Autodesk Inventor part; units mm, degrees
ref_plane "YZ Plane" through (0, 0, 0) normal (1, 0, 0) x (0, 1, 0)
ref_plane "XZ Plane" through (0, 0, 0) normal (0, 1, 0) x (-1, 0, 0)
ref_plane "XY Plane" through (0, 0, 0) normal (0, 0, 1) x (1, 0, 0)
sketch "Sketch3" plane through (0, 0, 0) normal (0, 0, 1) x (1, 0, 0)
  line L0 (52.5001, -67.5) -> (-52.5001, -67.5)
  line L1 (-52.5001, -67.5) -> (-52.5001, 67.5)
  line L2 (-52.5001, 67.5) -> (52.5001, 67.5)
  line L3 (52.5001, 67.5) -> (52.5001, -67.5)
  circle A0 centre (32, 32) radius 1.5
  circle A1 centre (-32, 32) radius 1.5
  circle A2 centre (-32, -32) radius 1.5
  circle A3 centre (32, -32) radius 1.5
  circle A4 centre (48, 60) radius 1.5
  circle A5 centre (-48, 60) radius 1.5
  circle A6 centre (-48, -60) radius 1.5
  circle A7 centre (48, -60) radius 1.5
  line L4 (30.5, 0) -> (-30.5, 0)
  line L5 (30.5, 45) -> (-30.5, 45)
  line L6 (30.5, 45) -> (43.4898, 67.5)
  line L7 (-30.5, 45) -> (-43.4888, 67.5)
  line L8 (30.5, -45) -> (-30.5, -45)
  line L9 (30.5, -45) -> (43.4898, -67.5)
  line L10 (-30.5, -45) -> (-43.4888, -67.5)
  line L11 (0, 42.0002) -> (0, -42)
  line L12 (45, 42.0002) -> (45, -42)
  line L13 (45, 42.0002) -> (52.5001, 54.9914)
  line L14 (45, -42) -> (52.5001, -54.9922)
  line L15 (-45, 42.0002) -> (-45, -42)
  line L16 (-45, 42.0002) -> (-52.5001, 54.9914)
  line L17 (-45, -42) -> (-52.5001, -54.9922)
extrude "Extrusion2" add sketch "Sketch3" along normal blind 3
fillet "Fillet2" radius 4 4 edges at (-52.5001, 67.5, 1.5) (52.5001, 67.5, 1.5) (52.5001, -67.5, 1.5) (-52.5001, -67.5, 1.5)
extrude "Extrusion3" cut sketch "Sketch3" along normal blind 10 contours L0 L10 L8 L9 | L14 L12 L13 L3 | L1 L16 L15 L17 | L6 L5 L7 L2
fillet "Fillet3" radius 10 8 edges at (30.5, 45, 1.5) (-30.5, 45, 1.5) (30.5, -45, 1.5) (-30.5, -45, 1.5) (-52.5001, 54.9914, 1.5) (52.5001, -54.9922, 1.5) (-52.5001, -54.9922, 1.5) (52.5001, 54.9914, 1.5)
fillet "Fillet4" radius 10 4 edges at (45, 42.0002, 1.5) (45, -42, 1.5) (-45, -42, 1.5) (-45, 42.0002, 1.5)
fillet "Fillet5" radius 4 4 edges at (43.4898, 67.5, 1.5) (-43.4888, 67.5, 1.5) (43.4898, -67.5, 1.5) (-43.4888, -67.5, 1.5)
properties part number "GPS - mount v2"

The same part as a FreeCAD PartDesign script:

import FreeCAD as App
import Part
import Sketcher

V = App.Vector
Q = App.Units.Quantity


def edges_at(feature, points):
    """Names of the edges that pass closest to the given points."""
    edges = feature.Shape.Edges
    near = lambda p: min(range(len(edges)), key=lambda i: edges[i].distToShape(Part.Vertex(*p))[0])
    return sorted({f"Edge{near(p) + 1}" for p in points})

doc = App.newDocument("Part")
body = doc.addObject("PartDesign::Body", "Body")

sketch1 = body.newObject("Sketcher::SketchObject", "Sketch")
sketch1.AttachmentSupport = (doc.getObject("XY_Plane"), [""])
sketch1.MapMode = "FlatFace"
sketch1.addGeometry(Part.LineSegment(V(52.5, -67.5, 0), V(52.5, 67.5, 0)), False)
sketch1.addGeometry(Part.LineSegment(V(52.5, 67.5, 0), V(-52.5, 67.5, 0)), False)
sketch1.addGeometry(Part.LineSegment(V(-52.5, 67.5, 0), V(-52.5, -67.5, 0)), False)
sketch1.addGeometry(Part.LineSegment(V(-52.5, -67.5, 0), V(52.5, -67.5, 0)), False)
sketch1.addGeometry(Part.Circle(V(-48, -60, 0), V(0, 0, 1), 1.5), False)
sketch1.addGeometry(Part.Circle(V(-32, -32, 0), V(0, 0, 1), 1.5), False)
sketch1.addGeometry(Part.Circle(V(48, -60, 0), V(0, 0, 1), 1.5), False)
sketch1.addGeometry(Part.Circle(V(32, -32, 0), V(0, 0, 1), 1.5), False)
sketch1.addGeometry(Part.Circle(V(-32, 32, 0), V(0, 0, 1), 1.5), False)
sketch1.addGeometry(Part.Circle(V(-48, 60, 0), V(0, 0, 1), 1.5), False)
sketch1.addGeometry(Part.Circle(V(32, 32, 0), V(0, 0, 1), 1.5), False)
sketch1.addGeometry(Part.Circle(V(48, 60, 0), V(0, 0, 1), 1.5), False)
sketch1.addConstraint(Sketcher.Constraint("Coincident", 0, 2, 1, 1))
sketch1.addConstraint(Sketcher.Constraint("Coincident", 1, 2, 2, 1))
sketch1.addConstraint(Sketcher.Constraint("Coincident", 2, 2, 3, 1))
sketch1.addConstraint(Sketcher.Constraint("Coincident", 3, 2, 0, 1))
sketch1.addConstraint(Sketcher.Constraint("Vertical", 0))
sketch1.addConstraint(Sketcher.Constraint("Horizontal", 1))
sketch1.addConstraint(Sketcher.Constraint("Vertical", 2))
sketch1.addConstraint(Sketcher.Constraint("Horizontal", 3))
sketch1.addConstraint(Sketcher.Constraint("Equal", 4, 5))
sketch1.addConstraint(Sketcher.Constraint("Equal", 5, 6))
sketch1.addConstraint(Sketcher.Constraint("Equal", 6, 7))
sketch1.addConstraint(Sketcher.Constraint("Equal", 7, 8))
sketch1.addConstraint(Sketcher.Constraint("Equal", 8, 9))
sketch1.addConstraint(Sketcher.Constraint("Equal", 9, 10))
sketch1.addConstraint(Sketcher.Constraint("Equal", 10, 11))
sketch1.addConstraint(Sketcher.Constraint("Symmetric", 7, 3, 8, 3, -1, 1))
sketch1.addConstraint(Sketcher.Constraint("Symmetric", 6, 3, 9, 3, -1, 1))
sketch1.addConstraint(Sketcher.Constraint("Symmetric", 5, 3, 10, 3, -1, 1))
sketch1.addConstraint(Sketcher.Constraint("Symmetric", 4, 3, 11, 3, -1, 1))
sketch1.addConstraint(Sketcher.Constraint("Symmetric", 0, 2, 2, 2, -1, 1))
sketch1.addConstraint(Sketcher.Constraint("Symmetric", 4, 3, 6, 3, -2))
sketch1.addConstraint(Sketcher.Constraint("Symmetric", 5, 3, 7, 3, -2))
sketch1.addConstraint(Sketcher.Constraint("Diameter", 4, 3.0))
sketch1.addConstraint(Sketcher.Constraint("DistanceY", 0, 1, 0, 2, 135.0))
sketch1.addConstraint(Sketcher.Constraint("DistanceX", 4, 3, -1, 1, 48.0))
sketch1.addConstraint(Sketcher.Constraint("DistanceY", 4, 3, -1, 1, 60.0))
sketch1.addConstraint(Sketcher.Constraint("DistanceX", 5, 3, -1, 1, 32.0))
sketch1.addConstraint(Sketcher.Constraint("DistanceY", 5, 3, -1, 1, 32.0))
sketch1.addConstraint(Sketcher.Constraint("DistanceX", -1, 1, 0, 2, 52.5))
pad1 = body.newObject("PartDesign::Pad", "Pad")
pad1.Profile = sketch1
pad1.Length = 3
doc.recompute()

fillet = body.newObject("PartDesign::Fillet", "Fillet")
fillet.Base = (pad1, edges_at(pad1, [
    (-52.5, 67.5, 1.5),
    (52.5, 67.5, 1.5),
    (52.5, -67.5, 1.5),
    (-52.5, -67.5, 1.5),
]))
fillet.Radius = 4

sketch2 = body.newObject("Sketcher::SketchObject", "Sketch001")
sketch2.AttachmentSupport = (doc.getObject("XY_Plane"), [""])
sketch2.MapMode = "FlatFace"
sketch2.addGeometry(Part.LineSegment(V(-43, -68, 0), V(43, -68, 0)), False)
sketch2.addGeometry(Part.LineSegment(V(43, -68, 0), V(30, -45, 0)), False)
sketch2.addGeometry(Part.LineSegment(V(30, -45, 0), V(-30, -45, 0)), False)
sketch2.addGeometry(Part.LineSegment(V(-30, -45, 0), V(-43, -68, 0)), False)
sketch2.addGeometry(Part.LineSegment(V(45, -42, 0), V(53, -55, 0)), False)
sketch2.addGeometry(Part.LineSegment(V(53, -55, 0), V(53, 55, 0)), False)
sketch2.addGeometry(Part.LineSegment(V(53, 55, 0), V(45, 42, 0)), False)
sketch2.addGeometry(Part.LineSegment(V(45, 42, 0), V(45, -42, 0)), False)
sketch2.addGeometry(Part.LineSegment(V(-53, 55, 0), V(-53, -55, 0)), False)
sketch2.addGeometry(Part.LineSegment(V(-53, -55, 0), V(-45, -42, 0)), False)
sketch2.addGeometry(Part.LineSegment(V(-45, -42, 0), V(-45, 42, 0)), False)
sketch2.addGeometry(Part.LineSegment(V(-45, 42, 0), V(-53, 55, 0)), False)
sketch2.addGeometry(Part.LineSegment(V(30, 45, 0), V(43, 68, 0)), False)
sketch2.addGeometry(Part.LineSegment(V(43, 68, 0), V(-43, 68, 0)), False)
sketch2.addGeometry(Part.LineSegment(V(-43, 68, 0), V(-30, 45, 0)), False)
sketch2.addGeometry(Part.LineSegment(V(-30, 45, 0), V(30, 45, 0)), False)
sketch2.addConstraint(Sketcher.Constraint("Coincident", 0, 2, 1, 1))
sketch2.addConstraint(Sketcher.Constraint("Coincident", 1, 2, 2, 1))
sketch2.addConstraint(Sketcher.Constraint("Coincident", 2, 2, 3, 1))
sketch2.addConstraint(Sketcher.Constraint("Coincident", 3, 2, 0, 1))
sketch2.addConstraint(Sketcher.Constraint("Coincident", 4, 2, 5, 1))
sketch2.addConstraint(Sketcher.Constraint("Coincident", 5, 2, 6, 1))
sketch2.addConstraint(Sketcher.Constraint("Coincident", 6, 2, 7, 1))
sketch2.addConstraint(Sketcher.Constraint("Coincident", 7, 2, 4, 1))
sketch2.addConstraint(Sketcher.Constraint("Coincident", 8, 2, 9, 1))
sketch2.addConstraint(Sketcher.Constraint("Coincident", 9, 2, 10, 1))
sketch2.addConstraint(Sketcher.Constraint("Coincident", 10, 2, 11, 1))
sketch2.addConstraint(Sketcher.Constraint("Coincident", 11, 2, 8, 1))
sketch2.addConstraint(Sketcher.Constraint("Coincident", 12, 2, 13, 1))
sketch2.addConstraint(Sketcher.Constraint("Coincident", 13, 2, 14, 1))
sketch2.addConstraint(Sketcher.Constraint("Coincident", 14, 2, 15, 1))
sketch2.addConstraint(Sketcher.Constraint("Coincident", 15, 2, 12, 1))
sketch2.addConstraint(Sketcher.Constraint("Horizontal", 0))
sketch2.addConstraint(Sketcher.Constraint("Horizontal", 2))
sketch2.addConstraint(Sketcher.Constraint("Vertical", 5))
sketch2.addConstraint(Sketcher.Constraint("Vertical", 7))
sketch2.addConstraint(Sketcher.Constraint("Vertical", 8))
sketch2.addConstraint(Sketcher.Constraint("Vertical", 10))
sketch2.addConstraint(Sketcher.Constraint("Horizontal", 13))
sketch2.addConstraint(Sketcher.Constraint("Horizontal", 15))
sketch2.addConstraint(Sketcher.Constraint("Symmetric", 6, 2, 9, 2, -1, 1))
sketch2.addConstraint(Sketcher.Constraint("Symmetric", 1, 2, 14, 2, -1, 1))
sketch2.addConstraint(Sketcher.Constraint("Symmetric", 4, 2, 8, 2, -2))
sketch2.addConstraint(Sketcher.Constraint("Symmetric", 0, 2, 12, 2, -1))
sketch2.addConstraint(Sketcher.Constraint("Parallel", 1, 4))
sketch2.addConstraint(Sketcher.Constraint("Parallel", 3, 6))
sketch2.addConstraint(Sketcher.Constraint("Parallel", 6, 9))
sketch2.addConstraint(Sketcher.Constraint("Parallel", 4, 11))
sketch2.addConstraint(Sketcher.Constraint("Parallel", 9, 12))
sketch2.addConstraint(Sketcher.Constraint("Parallel", 11, 14))
sketch2.addConstraint(Sketcher.Constraint("Horizontal", 7, 2, 9, 2))
sketch2.addConstraint(Sketcher.Constraint("Horizontal", 6, 2, 10, 2))
sketch2.addConstraint(Sketcher.Constraint("Vertical", 3, 2, 13, 2))
sketch2.addConstraint(Sketcher.Constraint("DistanceX", 2, 2, 2, 1, 61.0))
sketch2.addConstraint(Sketcher.Constraint("Angle", 1, Q("119.999 deg")))
sketch2.addConstraint(Sketcher.Constraint("DistanceY", 1, 2, -1, 1, 45.0))
sketch2.addConstraint(Sketcher.Constraint("DistanceX", -1, 1, 6, 2, 45.0))
sketch2.addConstraint(Sketcher.Constraint("DistanceY", 7, 2, -1, 1, 42.0))
sketch2.addConstraint(Sketcher.Constraint("DistanceX", 1, 2, 4, 2, 22.0))
sketch2.addConstraint(Sketcher.Constraint("DistanceY", 0, 2, -1, 1, 67.5))
pocket1 = body.newObject("PartDesign::Pocket", "Pocket")
pocket1.Profile = sketch2
pocket1.Length = 10
pocket1.Reversed = True
doc.recompute()

fillet2 = body.newObject("PartDesign::Fillet", "Fillet001")
fillet2.Base = (pocket1, edges_at(pocket1, [
    (30.5, 45, 1.5),
    (-30.5, 45, 1.5),
    (30.5, -45, 1.5),
    (-30.5, -45, 1.5),
    (-52.5, 54.991, 1.5),
    (52.5, -54.992, 1.5),
    (-52.5, -54.992, 1.5),
    (52.5, 54.991, 1.5),
]))
fillet2.Radius = 10
doc.recompute()

fillet3 = body.newObject("PartDesign::Fillet", "Fillet002")
fillet3.Base = (fillet2, edges_at(fillet2, [
    (45, 42, 1.5),
    (45, -42, 1.5),
    (-45, -42, 1.5),
    (-45, 42, 1.5),
]))
fillet3.Radius = 10
doc.recompute()

fillet4 = body.newObject("PartDesign::Fillet", "Fillet003")
fillet4.Base = (fillet3, edges_at(fillet3, [
    (43.49, 67.5, 1.5),
    (-43.489, 67.5, 1.5),
    (43.49, -67.5, 1.5),
    (-43.489, -67.5, 1.5),
]))
fillet4.Radius = 4

doc.recompute()
